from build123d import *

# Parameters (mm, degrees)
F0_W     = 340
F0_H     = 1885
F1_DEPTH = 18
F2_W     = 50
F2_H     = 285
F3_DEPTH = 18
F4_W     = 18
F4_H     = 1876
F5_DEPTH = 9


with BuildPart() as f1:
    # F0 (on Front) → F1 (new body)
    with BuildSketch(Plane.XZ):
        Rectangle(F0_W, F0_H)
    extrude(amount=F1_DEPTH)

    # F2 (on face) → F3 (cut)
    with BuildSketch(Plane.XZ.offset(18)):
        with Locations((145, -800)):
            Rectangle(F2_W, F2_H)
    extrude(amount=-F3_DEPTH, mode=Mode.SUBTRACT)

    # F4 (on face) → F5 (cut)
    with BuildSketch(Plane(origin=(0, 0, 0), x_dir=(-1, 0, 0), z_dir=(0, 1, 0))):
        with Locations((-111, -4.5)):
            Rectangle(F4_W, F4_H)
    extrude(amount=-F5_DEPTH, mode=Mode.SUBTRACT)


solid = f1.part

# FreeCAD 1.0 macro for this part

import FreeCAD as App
import Part
import Sketcher
from FreeCAD import Vector
Q = App.Units.Quantity

doc = App.newDocument("Part")
body = doc.addObject("PartDesign::Body", "Body")

# Sketch on XZ plane
sketch1 = body.newObject("Sketcher::SketchObject", "Sketch")
sketch1.AttachmentSupport = (doc.getObject("XZ_Plane"), [""])
sketch1.MapMode = "FlatFace"
sketch1.addGeometry(Part.LineSegment(Vector(-170, 942.5, 0), Vector(-170, -942.5, 0)), False)
sketch1.addGeometry(Part.LineSegment(Vector(-170, -942.5, 0), Vector(170, -942.5, 0)), False)
sketch1.addGeometry(Part.LineSegment(Vector(170, -942.5, 0), Vector(170, 942.5, 0)), False)
sketch1.addGeometry(Part.LineSegment(Vector(170, 942.5, 0), Vector(-170, 942.5, 0)), False)
sketch1.addConstraint(Sketcher.Constraint("Coincident", 0, 2, 1, 1))
sketch1.addConstraint(Sketcher.Constraint("Coincident", 1, 2, 2, 1))
sketch1.addConstraint(Sketcher.Constraint("Coincident", 2, 2, 3, 1))
sketch1.addConstraint(Sketcher.Constraint("Coincident", 3, 2, 0, 1))
sketch1.addConstraint(Sketcher.Constraint("Vertical", 0))
sketch1.addConstraint(Sketcher.Constraint("Horizontal", 1))
sketch1.addConstraint(Sketcher.Constraint("Vertical", 2))
sketch1.addConstraint(Sketcher.Constraint("Horizontal", 3))
sketch1.addConstraint(Sketcher.Constraint("Symmetric", 0, 2, 2, 2, -1, 1))
sketch1.addConstraint(Sketcher.Constraint("DistanceX", 1, 1, 1, 2, Q("340 mm")))
sketch1.addConstraint(Sketcher.Constraint("DistanceY", 0, 2, 0, 1, Q("1885 mm")))
pad1 = body.newObject("PartDesign::Pad", "Pad")
pad1.Profile = sketch1
pad1.Length = 18

# Sketch on XZ plane
sketch2 = body.newObject("Sketcher::SketchObject", "Sketch001")
sketch2.AttachmentSupport = (doc.getObject("XZ_Plane"), [""])
sketch2.MapMode = "FlatFace"
sketch2.AttachmentOffset = App.Placement(Vector(0, 0, 18), App.Rotation())
sketch2.addGeometry(Part.LineSegment(Vector(120, -657.5, 0), Vector(120, -942.5, 0)), False)
sketch2.addGeometry(Part.LineSegment(Vector(120, -942.5, 0), Vector(170, -942.5, 0)), False)
sketch2.addGeometry(Part.LineSegment(Vector(170, -942.5, 0), Vector(170, -657.5, 0)), False)
sketch2.addGeometry(Part.LineSegment(Vector(170, -657.5, 0), Vector(120, -657.5, 0)), False)
sketch2.addConstraint(Sketcher.Constraint("Coincident", 0, 2, 1, 1))
sketch2.addConstraint(Sketcher.Constraint("Coincident", 1, 2, 2, 1))
sketch2.addConstraint(Sketcher.Constraint("Coincident", 2, 2, 3, 1))
sketch2.addConstraint(Sketcher.Constraint("Coincident", 3, 2, 0, 1))
sketch2.addConstraint(Sketcher.Constraint("Vertical", 0))
sketch2.addConstraint(Sketcher.Constraint("Horizontal", 1))
sketch2.addConstraint(Sketcher.Constraint("Vertical", 2))
sketch2.addConstraint(Sketcher.Constraint("Horizontal", 3))
sketch2.addConstraint(Sketcher.Constraint("DistanceX", 1, 1, 1, 2, Q("50 mm")))
sketch2.addConstraint(Sketcher.Constraint("DistanceY", 0, 2, 0, 1, Q("285 mm")))
sketch2.addConstraint(Sketcher.Constraint("DistanceX", -1, 1, 0, 2, Q("120 mm")))
sketch2.addConstraint(Sketcher.Constraint("DistanceY", 0, 2, -1, 1, Q("942.5 mm")))
pocket1 = body.newObject("PartDesign::Pocket", "Pocket")
pocket1.Profile = sketch2
pocket1.Length = 18

# Sketch on XZ plane
sketch3 = body.newObject("Sketcher::SketchObject", "Sketch002")
sketch3.AttachmentSupport = (doc.getObject("XZ_Plane"), [""])
sketch3.MapMode = "FlatFace"
sketch3.addGeometry(Part.LineSegment(Vector(120, 933.5, 0), Vector(120, -942.5, 0)), False)
sketch3.addGeometry(Part.LineSegment(Vector(120, -942.5, 0), Vector(102, -942.5, 0)), False)
sketch3.addGeometry(Part.LineSegment(Vector(102, -942.5, 0), Vector(102, 933.5, 0)), False)
sketch3.addGeometry(Part.LineSegment(Vector(102, 933.5, 0), Vector(120, 933.5, 0)), False)
sketch3.addConstraint(Sketcher.Constraint("Coincident", 0, 2, 1, 1))
sketch3.addConstraint(Sketcher.Constraint("Coincident", 1, 2, 2, 1))
sketch3.addConstraint(Sketcher.Constraint("Coincident", 2, 2, 3, 1))
sketch3.addConstraint(Sketcher.Constraint("Coincident", 3, 2, 0, 1))
sketch3.addConstraint(Sketcher.Constraint("Vertical", 0))
sketch3.addConstraint(Sketcher.Constraint("Horizontal", 1))
sketch3.addConstraint(Sketcher.Constraint("Vertical", 2))
sketch3.addConstraint(Sketcher.Constraint("Horizontal", 3))
sketch3.addConstraint(Sketcher.Constraint("DistanceX", 1, 2, 1, 1, Q("18 mm")))
sketch3.addConstraint(Sketcher.Constraint("DistanceY", 0, 2, 0, 1, Q("1876 mm")))
sketch3.addConstraint(Sketcher.Constraint("DistanceX", -1, 1, 0, 2, Q("120 mm")))
sketch3.addConstraint(Sketcher.Constraint("DistanceY", 0, 2, -1, 1, Q("942.5 mm")))
pocket2 = body.newObject("PartDesign::Pocket", "Pocket001")
pocket2.Profile = sketch3
pocket2.Length = 9
pocket2.Reversed = True

doc.recompute()
